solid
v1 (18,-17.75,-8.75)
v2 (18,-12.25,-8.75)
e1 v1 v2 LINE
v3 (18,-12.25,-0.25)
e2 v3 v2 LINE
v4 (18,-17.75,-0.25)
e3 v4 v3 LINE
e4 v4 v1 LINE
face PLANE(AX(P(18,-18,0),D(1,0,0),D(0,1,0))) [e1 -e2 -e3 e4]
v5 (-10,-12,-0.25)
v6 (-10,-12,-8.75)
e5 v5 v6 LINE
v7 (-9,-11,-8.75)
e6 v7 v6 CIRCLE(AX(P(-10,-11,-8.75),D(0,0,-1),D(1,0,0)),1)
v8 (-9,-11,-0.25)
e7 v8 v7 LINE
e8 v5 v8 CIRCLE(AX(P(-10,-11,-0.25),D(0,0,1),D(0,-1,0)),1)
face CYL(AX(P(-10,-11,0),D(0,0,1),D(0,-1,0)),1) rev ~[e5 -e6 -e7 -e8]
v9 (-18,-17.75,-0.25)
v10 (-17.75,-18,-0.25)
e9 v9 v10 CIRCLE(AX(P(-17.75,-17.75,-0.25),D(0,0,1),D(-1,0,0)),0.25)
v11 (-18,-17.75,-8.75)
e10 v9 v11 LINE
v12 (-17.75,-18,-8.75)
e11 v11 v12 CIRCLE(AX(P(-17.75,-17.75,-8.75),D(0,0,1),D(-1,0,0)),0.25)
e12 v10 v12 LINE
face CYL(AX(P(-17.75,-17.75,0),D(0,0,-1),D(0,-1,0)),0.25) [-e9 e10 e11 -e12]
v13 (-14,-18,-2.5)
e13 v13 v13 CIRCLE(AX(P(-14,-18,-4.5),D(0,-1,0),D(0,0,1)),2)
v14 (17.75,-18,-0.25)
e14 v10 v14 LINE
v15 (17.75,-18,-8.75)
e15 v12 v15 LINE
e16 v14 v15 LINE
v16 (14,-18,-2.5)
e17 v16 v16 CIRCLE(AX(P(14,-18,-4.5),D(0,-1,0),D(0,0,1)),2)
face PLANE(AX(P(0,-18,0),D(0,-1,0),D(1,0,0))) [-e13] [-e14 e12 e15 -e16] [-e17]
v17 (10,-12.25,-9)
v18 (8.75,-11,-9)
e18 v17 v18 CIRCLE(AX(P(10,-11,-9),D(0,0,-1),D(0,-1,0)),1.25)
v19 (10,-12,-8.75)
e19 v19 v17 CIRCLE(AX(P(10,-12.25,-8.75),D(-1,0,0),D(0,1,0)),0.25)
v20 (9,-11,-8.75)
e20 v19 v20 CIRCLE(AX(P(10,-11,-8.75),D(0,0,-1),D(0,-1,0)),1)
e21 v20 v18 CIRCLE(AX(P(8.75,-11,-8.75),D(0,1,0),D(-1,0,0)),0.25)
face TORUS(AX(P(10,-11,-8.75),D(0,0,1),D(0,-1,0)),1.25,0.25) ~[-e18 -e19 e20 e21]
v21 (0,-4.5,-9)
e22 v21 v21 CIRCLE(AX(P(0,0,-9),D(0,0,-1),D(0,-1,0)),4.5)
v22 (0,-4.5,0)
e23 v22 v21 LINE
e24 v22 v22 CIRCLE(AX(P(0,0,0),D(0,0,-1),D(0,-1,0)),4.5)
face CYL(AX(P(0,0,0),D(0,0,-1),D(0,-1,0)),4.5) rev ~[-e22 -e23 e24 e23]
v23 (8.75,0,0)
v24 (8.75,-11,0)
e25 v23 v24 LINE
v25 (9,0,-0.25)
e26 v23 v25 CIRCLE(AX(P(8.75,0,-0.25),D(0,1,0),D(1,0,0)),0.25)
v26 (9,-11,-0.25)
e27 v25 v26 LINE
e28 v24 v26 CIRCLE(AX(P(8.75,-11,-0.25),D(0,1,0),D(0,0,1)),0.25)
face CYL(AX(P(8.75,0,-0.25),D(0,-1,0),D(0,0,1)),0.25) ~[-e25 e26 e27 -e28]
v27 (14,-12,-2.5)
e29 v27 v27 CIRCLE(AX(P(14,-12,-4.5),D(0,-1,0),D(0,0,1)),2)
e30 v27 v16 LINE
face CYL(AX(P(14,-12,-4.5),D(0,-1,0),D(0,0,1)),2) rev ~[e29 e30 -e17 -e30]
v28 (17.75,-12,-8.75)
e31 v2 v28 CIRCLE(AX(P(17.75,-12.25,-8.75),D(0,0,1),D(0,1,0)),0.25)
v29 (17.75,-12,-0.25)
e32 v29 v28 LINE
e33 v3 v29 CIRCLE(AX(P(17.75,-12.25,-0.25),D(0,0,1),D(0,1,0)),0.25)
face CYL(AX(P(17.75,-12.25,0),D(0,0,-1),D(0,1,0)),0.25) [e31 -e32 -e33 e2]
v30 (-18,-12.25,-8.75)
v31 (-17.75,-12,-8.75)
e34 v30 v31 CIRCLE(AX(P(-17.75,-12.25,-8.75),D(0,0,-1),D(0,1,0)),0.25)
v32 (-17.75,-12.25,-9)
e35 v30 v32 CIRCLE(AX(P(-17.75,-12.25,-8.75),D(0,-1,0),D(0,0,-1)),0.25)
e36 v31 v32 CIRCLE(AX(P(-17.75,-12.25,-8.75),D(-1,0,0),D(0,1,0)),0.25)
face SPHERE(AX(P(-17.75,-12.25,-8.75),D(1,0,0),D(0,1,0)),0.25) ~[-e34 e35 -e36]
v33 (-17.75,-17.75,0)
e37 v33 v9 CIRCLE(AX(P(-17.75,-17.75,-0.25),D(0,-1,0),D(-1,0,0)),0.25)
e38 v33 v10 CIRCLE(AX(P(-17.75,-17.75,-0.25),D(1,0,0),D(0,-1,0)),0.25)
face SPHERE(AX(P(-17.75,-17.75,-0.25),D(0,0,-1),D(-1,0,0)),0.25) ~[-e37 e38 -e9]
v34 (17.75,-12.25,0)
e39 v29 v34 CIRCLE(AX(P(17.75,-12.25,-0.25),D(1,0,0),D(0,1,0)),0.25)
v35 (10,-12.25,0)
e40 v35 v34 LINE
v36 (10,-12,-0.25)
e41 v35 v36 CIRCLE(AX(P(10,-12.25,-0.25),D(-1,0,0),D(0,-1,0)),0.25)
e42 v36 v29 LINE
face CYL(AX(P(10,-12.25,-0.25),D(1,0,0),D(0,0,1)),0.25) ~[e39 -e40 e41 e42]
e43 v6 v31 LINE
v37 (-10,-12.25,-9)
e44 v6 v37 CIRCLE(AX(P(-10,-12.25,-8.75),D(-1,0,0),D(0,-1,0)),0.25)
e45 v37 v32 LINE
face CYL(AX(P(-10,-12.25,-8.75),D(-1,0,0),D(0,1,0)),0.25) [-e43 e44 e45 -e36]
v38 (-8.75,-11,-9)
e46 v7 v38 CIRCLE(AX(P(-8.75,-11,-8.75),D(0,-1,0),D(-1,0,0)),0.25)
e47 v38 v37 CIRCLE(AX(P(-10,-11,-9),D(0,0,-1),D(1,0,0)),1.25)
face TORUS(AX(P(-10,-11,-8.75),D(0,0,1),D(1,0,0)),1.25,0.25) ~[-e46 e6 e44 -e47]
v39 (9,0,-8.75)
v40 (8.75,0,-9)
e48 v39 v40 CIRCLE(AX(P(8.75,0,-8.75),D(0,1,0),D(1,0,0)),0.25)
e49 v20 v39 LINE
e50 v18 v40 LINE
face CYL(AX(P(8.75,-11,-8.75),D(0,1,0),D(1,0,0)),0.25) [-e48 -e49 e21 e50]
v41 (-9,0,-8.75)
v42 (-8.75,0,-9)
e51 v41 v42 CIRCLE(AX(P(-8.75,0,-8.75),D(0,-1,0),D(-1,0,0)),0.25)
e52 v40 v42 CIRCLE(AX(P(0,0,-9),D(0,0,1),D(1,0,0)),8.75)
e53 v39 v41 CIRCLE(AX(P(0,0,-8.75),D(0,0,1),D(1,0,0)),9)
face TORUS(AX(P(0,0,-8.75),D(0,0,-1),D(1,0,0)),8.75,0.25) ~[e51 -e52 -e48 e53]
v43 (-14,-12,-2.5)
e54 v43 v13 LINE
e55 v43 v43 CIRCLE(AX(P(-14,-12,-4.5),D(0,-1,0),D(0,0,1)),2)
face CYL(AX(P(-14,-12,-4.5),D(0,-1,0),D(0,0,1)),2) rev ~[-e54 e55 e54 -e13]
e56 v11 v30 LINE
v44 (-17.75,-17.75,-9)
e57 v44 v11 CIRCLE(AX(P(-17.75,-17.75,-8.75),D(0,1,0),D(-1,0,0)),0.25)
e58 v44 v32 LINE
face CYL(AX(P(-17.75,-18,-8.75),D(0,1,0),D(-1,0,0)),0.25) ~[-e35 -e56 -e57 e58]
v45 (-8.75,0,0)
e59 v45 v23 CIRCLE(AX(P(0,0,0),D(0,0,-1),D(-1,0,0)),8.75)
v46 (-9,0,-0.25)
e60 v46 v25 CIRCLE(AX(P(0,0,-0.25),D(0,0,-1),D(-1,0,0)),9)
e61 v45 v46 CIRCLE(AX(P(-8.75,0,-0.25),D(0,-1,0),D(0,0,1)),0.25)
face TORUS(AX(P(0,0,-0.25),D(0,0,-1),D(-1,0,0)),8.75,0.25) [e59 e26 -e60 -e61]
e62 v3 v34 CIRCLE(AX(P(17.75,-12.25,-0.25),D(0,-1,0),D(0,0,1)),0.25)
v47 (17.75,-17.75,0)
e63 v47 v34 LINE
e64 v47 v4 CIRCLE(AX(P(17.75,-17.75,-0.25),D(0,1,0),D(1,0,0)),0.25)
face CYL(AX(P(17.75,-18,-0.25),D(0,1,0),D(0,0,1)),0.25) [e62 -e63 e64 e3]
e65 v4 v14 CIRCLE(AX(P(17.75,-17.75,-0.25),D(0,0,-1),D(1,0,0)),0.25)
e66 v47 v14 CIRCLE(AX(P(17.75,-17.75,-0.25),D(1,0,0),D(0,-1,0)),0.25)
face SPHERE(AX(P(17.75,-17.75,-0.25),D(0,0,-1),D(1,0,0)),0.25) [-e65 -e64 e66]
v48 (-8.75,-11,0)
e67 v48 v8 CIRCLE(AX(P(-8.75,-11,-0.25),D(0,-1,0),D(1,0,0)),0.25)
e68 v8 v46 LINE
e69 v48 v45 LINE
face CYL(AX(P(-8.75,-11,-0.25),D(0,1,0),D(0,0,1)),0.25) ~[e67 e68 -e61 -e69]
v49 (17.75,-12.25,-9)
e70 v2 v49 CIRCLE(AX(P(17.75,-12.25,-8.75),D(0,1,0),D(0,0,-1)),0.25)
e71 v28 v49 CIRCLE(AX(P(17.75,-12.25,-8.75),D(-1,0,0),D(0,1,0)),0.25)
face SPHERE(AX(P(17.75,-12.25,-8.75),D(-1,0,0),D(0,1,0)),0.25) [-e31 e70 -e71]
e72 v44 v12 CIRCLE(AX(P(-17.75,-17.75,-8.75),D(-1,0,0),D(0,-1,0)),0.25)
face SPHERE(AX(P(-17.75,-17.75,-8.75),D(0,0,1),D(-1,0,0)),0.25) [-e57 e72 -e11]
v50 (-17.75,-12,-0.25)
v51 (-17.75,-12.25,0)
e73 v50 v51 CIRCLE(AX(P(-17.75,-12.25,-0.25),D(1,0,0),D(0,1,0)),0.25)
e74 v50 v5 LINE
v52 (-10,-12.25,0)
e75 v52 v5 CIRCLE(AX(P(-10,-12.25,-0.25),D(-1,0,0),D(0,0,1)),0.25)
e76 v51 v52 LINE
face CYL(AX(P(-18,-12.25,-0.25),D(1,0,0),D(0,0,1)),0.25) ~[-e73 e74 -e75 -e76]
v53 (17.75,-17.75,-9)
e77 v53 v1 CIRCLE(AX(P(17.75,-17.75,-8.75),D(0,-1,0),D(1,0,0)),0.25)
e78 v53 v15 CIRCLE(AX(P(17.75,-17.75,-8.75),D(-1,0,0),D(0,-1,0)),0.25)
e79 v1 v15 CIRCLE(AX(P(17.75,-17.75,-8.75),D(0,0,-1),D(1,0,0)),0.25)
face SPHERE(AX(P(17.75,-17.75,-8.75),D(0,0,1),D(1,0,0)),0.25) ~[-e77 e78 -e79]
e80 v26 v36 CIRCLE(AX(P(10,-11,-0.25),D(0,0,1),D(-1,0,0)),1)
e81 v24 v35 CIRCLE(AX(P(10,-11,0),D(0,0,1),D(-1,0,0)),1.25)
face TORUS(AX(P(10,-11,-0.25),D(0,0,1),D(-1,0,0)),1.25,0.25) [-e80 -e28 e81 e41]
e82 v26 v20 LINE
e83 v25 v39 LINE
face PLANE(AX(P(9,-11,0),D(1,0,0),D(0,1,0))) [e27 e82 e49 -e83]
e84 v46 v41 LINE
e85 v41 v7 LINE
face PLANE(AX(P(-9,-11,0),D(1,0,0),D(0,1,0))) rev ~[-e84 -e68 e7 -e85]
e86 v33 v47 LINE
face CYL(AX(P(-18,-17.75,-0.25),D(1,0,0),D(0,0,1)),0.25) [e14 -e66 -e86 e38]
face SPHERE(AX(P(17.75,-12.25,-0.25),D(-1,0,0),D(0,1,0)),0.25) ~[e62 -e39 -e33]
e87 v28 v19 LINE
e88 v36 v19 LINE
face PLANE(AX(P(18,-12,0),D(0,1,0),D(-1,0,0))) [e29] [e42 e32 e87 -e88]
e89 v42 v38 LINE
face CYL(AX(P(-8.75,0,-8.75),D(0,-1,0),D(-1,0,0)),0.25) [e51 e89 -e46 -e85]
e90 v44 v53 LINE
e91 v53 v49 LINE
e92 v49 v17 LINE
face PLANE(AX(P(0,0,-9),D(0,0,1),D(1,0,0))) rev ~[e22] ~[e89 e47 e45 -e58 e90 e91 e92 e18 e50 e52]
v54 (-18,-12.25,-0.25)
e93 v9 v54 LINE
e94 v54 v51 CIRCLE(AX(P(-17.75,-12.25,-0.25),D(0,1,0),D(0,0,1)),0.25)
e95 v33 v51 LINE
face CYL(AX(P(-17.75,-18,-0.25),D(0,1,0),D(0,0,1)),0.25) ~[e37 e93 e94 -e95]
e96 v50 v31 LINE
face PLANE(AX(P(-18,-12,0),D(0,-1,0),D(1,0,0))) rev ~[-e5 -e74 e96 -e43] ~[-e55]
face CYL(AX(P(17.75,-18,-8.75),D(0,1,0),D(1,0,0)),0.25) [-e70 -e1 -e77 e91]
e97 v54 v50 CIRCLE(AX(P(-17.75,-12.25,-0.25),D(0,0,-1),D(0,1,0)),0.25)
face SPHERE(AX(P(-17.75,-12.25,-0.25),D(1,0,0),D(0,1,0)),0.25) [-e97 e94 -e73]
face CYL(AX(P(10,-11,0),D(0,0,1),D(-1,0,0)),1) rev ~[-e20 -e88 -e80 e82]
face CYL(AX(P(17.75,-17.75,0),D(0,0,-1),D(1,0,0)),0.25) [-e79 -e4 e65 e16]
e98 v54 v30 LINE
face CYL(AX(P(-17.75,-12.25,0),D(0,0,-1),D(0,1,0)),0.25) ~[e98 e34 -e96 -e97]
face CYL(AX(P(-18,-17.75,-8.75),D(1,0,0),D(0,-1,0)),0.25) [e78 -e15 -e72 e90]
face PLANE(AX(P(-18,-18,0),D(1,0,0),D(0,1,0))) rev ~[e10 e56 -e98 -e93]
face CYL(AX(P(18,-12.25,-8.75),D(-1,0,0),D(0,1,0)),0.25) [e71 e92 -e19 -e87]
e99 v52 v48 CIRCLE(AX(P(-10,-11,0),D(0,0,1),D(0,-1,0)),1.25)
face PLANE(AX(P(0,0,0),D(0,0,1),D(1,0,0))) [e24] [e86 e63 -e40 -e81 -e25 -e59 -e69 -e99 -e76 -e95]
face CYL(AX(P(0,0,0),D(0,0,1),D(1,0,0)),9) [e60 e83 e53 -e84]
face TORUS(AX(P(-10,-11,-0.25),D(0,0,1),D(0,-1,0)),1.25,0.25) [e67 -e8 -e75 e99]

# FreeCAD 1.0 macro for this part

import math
import FreeCAD as App
import Part
import Sketcher
from FreeCAD import Vector


def edges_at(feature, points):
    """Names of the edges that pass closest to the given points."""
    edges = feature.Shape.Edges
    near = lambda p: min(range(len(edges)), key=lambda i: edges[i].distToShape(Part.Vertex(*p))[0])
    return sorted({f"Edge{near(p) + 1}" for p in points})

doc = App.newDocument("Part")
body = doc.addObject("PartDesign::Body", "Body")

# Sketch on XY plane
sketch1 = body.newObject("Sketcher::SketchObject", "Sketch")
sketch1.AttachmentSupport = (doc.getObject("XY_Plane"), [""])
sketch1.MapMode = "FlatFace"
sketch1.addGeometry(Part.LineSegment(Vector(9, -11, 0), Vector(9, 0, 0)), False)
sketch1.addGeometry(Part.ArcOfCircle(Part.Circle(Vector(0, 0, 0), Vector(0, 0, 1), 9), math.radians(0), math.radians(180)), False)
sketch1.addGeometry(Part.LineSegment(Vector(-9, 0, 0), Vector(-9, -11, 0)), False)
sketch1.addGeometry(Part.ArcOfCircle(Part.Circle(Vector(-10, -11, 0), Vector(0, 0, 1), 1), math.radians(-90), math.radians(0)), False)
sketch1.addGeometry(Part.LineSegment(Vector(-10, -12, 0), Vector(-18, -12, 0)), False)
sketch1.addGeometry(Part.LineSegment(Vector(-18, -12, 0), Vector(-18, -18, 0)), False)
sketch1.addGeometry(Part.LineSegment(Vector(-18, -18, 0), Vector(18, -18, 0)), False)
sketch1.addGeometry(Part.LineSegment(Vector(18, -18, 0), Vector(18, -12, 0)), False)
sketch1.addGeometry(Part.LineSegment(Vector(18, -12, 0), Vector(10, -12, 0)), False)
sketch1.addGeometry(Part.ArcOfCircle(Part.Circle(Vector(10, -11, 0), Vector(0, 0, 1), 1), math.radians(180), math.radians(270)), False)
sketch1.addConstraint(Sketcher.Constraint("Tangent", 0, 2, 1, 1))
sketch1.addConstraint(Sketcher.Constraint("Tangent", 1, 2, 2, 1))
sketch1.addConstraint(Sketcher.Constraint("Tangent", 2, 2, 3, 2))
sketch1.addConstraint(Sketcher.Constraint("Tangent", 3, 1, 4, 1))
sketch1.addConstraint(Sketcher.Constraint("Coincident", 4, 2, 5, 1))
sketch1.addConstraint(Sketcher.Constraint("Coincident", 5, 2, 6, 1))
sketch1.addConstraint(Sketcher.Constraint("Coincident", 6, 2, 7, 1))
sketch1.addConstraint(Sketcher.Constraint("Coincident", 7, 2, 8, 1))
sketch1.addConstraint(Sketcher.Constraint("Tangent", 8, 2, 9, 2))
sketch1.addConstraint(Sketcher.Constraint("Tangent", 9, 1, 0, 1))
sketch1.addConstraint(Sketcher.Constraint("Vertical", 0))
sketch1.addConstraint(Sketcher.Constraint("Vertical", 2))
sketch1.addConstraint(Sketcher.Constraint("Horizontal", 4))
sketch1.addConstraint(Sketcher.Constraint("Vertical", 5))
sketch1.addConstraint(Sketcher.Constraint("Horizontal", 6))
sketch1.addConstraint(Sketcher.Constraint("Vertical", 7))
sketch1.addConstraint(Sketcher.Constraint("Horizontal", 8))
sketch1.addConstraint(Sketcher.Constraint("Coincident", 1, 3, -1, 1))
sketch1.addConstraint(Sketcher.Constraint("Equal", 3, 9))
sketch1.addConstraint(Sketcher.Constraint("Symmetric", 4, 2, 7, 2, -2))
sketch1.addConstraint(Sketcher.Constraint("Radius", 1, 9.0))
sketch1.addConstraint(Sketcher.Constraint("Radius", 3, 1.0))
sketch1.addConstraint(Sketcher.Constraint("DistanceX", 6, 1, 6, 2, 36.0))
sketch1.addConstraint(Sketcher.Constraint("DistanceY", 5, 2, 5, 1, 6.0))
sketch1.addConstraint(Sketcher.Constraint("DistanceY", 5, 2, -1, 1, 18.0))
pad1 = body.newObject("PartDesign::Pad", "Pad")
pad1.Profile = sketch1
pad1.Length = 9
pad1.Reversed = True

# Sketch on XY plane
sketch2 = body.newObject("Sketcher::SketchObject", "Sketch001")
sketch2.AttachmentSupport = (doc.getObject("XY_Plane"), [""])
sketch2.MapMode = "FlatFace"
sketch2.addGeometry(Part.Circle(Vector(0, 0, 0), Vector(0, 0, 1), 4.5), False)
sketch2.addConstraint(Sketcher.Constraint("Coincident", 0, 3, -1, 1))
sketch2.addConstraint(Sketcher.Constraint("Diameter", 0, 9.0))
doc.recompute()
hole = body.newObject("PartDesign::Hole", "Hole")
hole.Profile = sketch2
hole.ThreadType = "None"
hole.Diameter = 9
hole.DepthType = "ThroughAll"

# Sketch on XZ plane
sketch3 = body.newObject("Sketcher::SketchObject", "Sketch002")
sketch3.AttachmentSupport = (doc.getObject("XZ_Plane"), [""])
sketch3.MapMode = "FlatFace"
sketch3.AttachmentOffset = App.Placement(Vector(0, 0, 12), App.Rotation())
sketch3.addGeometry(Part.Circle(Vector(-14, -4.5, 0), Vector(0, 0, 1), 2), False)
sketch3.addGeometry(Part.Circle(Vector(14, -4.5, 0), Vector(0, 0, 1), 2), False)
sketch3.addConstraint(Sketcher.Constraint("Equal", 0, 1))
sketch3.addConstraint(Sketcher.Constraint("Symmetric", 0, 3, 1, 3, -2))
sketch3.addConstraint(Sketcher.Constraint("Diameter", 0, 4.0))
sketch3.addConstraint(Sketcher.Constraint("DistanceX", 0, 3, -1, 1, 14.0))
sketch3.addConstraint(Sketcher.Constraint("DistanceY", 0, 3, -1, 1, 4.5))
doc.recompute()
hole2 = body.newObject("PartDesign::Hole", "Hole001")
hole2.Profile = sketch3
hole2.ThreadType = "None"
hole2.Diameter = 4
hole2.DepthType = "ThroughAll"
hole2.Reversed = True
doc.recompute()

fillet = body.newObject("PartDesign::Fillet", "Fillet")
fillet.Base = (hole2, edges_at(hole2, [
    (9, -5.5, -9),
    (9.293, -11.707, -9),
    (14, -12, -9),
    (-9, -5.5, -9),
    (-9.293, -11.707, -9),
    (-14, -12, -9),
    (0, 9, -9),
    (-9, -5.5, 0),
    (-9.293, -11.707, 0),
    (-14, -12, 0),
    (9, -5.5, 0),
    (9.293, -11.707, 0),
    (14, -12, 0),
    (0, 9, 0),
    (18, -12, -4.5),
    (-18, -12, -4.5),
    (18, -18, -4.5),
    (18, -15, -9),
    (18, -15, 0),
    (-18, -18, -4.5),
    (-18, -15, 0),
    (-18, -15, -9),
    (0, -18, -9),
    (0, -18, 0),
]))
fillet.Radius = 0.25

doc.recompute()
